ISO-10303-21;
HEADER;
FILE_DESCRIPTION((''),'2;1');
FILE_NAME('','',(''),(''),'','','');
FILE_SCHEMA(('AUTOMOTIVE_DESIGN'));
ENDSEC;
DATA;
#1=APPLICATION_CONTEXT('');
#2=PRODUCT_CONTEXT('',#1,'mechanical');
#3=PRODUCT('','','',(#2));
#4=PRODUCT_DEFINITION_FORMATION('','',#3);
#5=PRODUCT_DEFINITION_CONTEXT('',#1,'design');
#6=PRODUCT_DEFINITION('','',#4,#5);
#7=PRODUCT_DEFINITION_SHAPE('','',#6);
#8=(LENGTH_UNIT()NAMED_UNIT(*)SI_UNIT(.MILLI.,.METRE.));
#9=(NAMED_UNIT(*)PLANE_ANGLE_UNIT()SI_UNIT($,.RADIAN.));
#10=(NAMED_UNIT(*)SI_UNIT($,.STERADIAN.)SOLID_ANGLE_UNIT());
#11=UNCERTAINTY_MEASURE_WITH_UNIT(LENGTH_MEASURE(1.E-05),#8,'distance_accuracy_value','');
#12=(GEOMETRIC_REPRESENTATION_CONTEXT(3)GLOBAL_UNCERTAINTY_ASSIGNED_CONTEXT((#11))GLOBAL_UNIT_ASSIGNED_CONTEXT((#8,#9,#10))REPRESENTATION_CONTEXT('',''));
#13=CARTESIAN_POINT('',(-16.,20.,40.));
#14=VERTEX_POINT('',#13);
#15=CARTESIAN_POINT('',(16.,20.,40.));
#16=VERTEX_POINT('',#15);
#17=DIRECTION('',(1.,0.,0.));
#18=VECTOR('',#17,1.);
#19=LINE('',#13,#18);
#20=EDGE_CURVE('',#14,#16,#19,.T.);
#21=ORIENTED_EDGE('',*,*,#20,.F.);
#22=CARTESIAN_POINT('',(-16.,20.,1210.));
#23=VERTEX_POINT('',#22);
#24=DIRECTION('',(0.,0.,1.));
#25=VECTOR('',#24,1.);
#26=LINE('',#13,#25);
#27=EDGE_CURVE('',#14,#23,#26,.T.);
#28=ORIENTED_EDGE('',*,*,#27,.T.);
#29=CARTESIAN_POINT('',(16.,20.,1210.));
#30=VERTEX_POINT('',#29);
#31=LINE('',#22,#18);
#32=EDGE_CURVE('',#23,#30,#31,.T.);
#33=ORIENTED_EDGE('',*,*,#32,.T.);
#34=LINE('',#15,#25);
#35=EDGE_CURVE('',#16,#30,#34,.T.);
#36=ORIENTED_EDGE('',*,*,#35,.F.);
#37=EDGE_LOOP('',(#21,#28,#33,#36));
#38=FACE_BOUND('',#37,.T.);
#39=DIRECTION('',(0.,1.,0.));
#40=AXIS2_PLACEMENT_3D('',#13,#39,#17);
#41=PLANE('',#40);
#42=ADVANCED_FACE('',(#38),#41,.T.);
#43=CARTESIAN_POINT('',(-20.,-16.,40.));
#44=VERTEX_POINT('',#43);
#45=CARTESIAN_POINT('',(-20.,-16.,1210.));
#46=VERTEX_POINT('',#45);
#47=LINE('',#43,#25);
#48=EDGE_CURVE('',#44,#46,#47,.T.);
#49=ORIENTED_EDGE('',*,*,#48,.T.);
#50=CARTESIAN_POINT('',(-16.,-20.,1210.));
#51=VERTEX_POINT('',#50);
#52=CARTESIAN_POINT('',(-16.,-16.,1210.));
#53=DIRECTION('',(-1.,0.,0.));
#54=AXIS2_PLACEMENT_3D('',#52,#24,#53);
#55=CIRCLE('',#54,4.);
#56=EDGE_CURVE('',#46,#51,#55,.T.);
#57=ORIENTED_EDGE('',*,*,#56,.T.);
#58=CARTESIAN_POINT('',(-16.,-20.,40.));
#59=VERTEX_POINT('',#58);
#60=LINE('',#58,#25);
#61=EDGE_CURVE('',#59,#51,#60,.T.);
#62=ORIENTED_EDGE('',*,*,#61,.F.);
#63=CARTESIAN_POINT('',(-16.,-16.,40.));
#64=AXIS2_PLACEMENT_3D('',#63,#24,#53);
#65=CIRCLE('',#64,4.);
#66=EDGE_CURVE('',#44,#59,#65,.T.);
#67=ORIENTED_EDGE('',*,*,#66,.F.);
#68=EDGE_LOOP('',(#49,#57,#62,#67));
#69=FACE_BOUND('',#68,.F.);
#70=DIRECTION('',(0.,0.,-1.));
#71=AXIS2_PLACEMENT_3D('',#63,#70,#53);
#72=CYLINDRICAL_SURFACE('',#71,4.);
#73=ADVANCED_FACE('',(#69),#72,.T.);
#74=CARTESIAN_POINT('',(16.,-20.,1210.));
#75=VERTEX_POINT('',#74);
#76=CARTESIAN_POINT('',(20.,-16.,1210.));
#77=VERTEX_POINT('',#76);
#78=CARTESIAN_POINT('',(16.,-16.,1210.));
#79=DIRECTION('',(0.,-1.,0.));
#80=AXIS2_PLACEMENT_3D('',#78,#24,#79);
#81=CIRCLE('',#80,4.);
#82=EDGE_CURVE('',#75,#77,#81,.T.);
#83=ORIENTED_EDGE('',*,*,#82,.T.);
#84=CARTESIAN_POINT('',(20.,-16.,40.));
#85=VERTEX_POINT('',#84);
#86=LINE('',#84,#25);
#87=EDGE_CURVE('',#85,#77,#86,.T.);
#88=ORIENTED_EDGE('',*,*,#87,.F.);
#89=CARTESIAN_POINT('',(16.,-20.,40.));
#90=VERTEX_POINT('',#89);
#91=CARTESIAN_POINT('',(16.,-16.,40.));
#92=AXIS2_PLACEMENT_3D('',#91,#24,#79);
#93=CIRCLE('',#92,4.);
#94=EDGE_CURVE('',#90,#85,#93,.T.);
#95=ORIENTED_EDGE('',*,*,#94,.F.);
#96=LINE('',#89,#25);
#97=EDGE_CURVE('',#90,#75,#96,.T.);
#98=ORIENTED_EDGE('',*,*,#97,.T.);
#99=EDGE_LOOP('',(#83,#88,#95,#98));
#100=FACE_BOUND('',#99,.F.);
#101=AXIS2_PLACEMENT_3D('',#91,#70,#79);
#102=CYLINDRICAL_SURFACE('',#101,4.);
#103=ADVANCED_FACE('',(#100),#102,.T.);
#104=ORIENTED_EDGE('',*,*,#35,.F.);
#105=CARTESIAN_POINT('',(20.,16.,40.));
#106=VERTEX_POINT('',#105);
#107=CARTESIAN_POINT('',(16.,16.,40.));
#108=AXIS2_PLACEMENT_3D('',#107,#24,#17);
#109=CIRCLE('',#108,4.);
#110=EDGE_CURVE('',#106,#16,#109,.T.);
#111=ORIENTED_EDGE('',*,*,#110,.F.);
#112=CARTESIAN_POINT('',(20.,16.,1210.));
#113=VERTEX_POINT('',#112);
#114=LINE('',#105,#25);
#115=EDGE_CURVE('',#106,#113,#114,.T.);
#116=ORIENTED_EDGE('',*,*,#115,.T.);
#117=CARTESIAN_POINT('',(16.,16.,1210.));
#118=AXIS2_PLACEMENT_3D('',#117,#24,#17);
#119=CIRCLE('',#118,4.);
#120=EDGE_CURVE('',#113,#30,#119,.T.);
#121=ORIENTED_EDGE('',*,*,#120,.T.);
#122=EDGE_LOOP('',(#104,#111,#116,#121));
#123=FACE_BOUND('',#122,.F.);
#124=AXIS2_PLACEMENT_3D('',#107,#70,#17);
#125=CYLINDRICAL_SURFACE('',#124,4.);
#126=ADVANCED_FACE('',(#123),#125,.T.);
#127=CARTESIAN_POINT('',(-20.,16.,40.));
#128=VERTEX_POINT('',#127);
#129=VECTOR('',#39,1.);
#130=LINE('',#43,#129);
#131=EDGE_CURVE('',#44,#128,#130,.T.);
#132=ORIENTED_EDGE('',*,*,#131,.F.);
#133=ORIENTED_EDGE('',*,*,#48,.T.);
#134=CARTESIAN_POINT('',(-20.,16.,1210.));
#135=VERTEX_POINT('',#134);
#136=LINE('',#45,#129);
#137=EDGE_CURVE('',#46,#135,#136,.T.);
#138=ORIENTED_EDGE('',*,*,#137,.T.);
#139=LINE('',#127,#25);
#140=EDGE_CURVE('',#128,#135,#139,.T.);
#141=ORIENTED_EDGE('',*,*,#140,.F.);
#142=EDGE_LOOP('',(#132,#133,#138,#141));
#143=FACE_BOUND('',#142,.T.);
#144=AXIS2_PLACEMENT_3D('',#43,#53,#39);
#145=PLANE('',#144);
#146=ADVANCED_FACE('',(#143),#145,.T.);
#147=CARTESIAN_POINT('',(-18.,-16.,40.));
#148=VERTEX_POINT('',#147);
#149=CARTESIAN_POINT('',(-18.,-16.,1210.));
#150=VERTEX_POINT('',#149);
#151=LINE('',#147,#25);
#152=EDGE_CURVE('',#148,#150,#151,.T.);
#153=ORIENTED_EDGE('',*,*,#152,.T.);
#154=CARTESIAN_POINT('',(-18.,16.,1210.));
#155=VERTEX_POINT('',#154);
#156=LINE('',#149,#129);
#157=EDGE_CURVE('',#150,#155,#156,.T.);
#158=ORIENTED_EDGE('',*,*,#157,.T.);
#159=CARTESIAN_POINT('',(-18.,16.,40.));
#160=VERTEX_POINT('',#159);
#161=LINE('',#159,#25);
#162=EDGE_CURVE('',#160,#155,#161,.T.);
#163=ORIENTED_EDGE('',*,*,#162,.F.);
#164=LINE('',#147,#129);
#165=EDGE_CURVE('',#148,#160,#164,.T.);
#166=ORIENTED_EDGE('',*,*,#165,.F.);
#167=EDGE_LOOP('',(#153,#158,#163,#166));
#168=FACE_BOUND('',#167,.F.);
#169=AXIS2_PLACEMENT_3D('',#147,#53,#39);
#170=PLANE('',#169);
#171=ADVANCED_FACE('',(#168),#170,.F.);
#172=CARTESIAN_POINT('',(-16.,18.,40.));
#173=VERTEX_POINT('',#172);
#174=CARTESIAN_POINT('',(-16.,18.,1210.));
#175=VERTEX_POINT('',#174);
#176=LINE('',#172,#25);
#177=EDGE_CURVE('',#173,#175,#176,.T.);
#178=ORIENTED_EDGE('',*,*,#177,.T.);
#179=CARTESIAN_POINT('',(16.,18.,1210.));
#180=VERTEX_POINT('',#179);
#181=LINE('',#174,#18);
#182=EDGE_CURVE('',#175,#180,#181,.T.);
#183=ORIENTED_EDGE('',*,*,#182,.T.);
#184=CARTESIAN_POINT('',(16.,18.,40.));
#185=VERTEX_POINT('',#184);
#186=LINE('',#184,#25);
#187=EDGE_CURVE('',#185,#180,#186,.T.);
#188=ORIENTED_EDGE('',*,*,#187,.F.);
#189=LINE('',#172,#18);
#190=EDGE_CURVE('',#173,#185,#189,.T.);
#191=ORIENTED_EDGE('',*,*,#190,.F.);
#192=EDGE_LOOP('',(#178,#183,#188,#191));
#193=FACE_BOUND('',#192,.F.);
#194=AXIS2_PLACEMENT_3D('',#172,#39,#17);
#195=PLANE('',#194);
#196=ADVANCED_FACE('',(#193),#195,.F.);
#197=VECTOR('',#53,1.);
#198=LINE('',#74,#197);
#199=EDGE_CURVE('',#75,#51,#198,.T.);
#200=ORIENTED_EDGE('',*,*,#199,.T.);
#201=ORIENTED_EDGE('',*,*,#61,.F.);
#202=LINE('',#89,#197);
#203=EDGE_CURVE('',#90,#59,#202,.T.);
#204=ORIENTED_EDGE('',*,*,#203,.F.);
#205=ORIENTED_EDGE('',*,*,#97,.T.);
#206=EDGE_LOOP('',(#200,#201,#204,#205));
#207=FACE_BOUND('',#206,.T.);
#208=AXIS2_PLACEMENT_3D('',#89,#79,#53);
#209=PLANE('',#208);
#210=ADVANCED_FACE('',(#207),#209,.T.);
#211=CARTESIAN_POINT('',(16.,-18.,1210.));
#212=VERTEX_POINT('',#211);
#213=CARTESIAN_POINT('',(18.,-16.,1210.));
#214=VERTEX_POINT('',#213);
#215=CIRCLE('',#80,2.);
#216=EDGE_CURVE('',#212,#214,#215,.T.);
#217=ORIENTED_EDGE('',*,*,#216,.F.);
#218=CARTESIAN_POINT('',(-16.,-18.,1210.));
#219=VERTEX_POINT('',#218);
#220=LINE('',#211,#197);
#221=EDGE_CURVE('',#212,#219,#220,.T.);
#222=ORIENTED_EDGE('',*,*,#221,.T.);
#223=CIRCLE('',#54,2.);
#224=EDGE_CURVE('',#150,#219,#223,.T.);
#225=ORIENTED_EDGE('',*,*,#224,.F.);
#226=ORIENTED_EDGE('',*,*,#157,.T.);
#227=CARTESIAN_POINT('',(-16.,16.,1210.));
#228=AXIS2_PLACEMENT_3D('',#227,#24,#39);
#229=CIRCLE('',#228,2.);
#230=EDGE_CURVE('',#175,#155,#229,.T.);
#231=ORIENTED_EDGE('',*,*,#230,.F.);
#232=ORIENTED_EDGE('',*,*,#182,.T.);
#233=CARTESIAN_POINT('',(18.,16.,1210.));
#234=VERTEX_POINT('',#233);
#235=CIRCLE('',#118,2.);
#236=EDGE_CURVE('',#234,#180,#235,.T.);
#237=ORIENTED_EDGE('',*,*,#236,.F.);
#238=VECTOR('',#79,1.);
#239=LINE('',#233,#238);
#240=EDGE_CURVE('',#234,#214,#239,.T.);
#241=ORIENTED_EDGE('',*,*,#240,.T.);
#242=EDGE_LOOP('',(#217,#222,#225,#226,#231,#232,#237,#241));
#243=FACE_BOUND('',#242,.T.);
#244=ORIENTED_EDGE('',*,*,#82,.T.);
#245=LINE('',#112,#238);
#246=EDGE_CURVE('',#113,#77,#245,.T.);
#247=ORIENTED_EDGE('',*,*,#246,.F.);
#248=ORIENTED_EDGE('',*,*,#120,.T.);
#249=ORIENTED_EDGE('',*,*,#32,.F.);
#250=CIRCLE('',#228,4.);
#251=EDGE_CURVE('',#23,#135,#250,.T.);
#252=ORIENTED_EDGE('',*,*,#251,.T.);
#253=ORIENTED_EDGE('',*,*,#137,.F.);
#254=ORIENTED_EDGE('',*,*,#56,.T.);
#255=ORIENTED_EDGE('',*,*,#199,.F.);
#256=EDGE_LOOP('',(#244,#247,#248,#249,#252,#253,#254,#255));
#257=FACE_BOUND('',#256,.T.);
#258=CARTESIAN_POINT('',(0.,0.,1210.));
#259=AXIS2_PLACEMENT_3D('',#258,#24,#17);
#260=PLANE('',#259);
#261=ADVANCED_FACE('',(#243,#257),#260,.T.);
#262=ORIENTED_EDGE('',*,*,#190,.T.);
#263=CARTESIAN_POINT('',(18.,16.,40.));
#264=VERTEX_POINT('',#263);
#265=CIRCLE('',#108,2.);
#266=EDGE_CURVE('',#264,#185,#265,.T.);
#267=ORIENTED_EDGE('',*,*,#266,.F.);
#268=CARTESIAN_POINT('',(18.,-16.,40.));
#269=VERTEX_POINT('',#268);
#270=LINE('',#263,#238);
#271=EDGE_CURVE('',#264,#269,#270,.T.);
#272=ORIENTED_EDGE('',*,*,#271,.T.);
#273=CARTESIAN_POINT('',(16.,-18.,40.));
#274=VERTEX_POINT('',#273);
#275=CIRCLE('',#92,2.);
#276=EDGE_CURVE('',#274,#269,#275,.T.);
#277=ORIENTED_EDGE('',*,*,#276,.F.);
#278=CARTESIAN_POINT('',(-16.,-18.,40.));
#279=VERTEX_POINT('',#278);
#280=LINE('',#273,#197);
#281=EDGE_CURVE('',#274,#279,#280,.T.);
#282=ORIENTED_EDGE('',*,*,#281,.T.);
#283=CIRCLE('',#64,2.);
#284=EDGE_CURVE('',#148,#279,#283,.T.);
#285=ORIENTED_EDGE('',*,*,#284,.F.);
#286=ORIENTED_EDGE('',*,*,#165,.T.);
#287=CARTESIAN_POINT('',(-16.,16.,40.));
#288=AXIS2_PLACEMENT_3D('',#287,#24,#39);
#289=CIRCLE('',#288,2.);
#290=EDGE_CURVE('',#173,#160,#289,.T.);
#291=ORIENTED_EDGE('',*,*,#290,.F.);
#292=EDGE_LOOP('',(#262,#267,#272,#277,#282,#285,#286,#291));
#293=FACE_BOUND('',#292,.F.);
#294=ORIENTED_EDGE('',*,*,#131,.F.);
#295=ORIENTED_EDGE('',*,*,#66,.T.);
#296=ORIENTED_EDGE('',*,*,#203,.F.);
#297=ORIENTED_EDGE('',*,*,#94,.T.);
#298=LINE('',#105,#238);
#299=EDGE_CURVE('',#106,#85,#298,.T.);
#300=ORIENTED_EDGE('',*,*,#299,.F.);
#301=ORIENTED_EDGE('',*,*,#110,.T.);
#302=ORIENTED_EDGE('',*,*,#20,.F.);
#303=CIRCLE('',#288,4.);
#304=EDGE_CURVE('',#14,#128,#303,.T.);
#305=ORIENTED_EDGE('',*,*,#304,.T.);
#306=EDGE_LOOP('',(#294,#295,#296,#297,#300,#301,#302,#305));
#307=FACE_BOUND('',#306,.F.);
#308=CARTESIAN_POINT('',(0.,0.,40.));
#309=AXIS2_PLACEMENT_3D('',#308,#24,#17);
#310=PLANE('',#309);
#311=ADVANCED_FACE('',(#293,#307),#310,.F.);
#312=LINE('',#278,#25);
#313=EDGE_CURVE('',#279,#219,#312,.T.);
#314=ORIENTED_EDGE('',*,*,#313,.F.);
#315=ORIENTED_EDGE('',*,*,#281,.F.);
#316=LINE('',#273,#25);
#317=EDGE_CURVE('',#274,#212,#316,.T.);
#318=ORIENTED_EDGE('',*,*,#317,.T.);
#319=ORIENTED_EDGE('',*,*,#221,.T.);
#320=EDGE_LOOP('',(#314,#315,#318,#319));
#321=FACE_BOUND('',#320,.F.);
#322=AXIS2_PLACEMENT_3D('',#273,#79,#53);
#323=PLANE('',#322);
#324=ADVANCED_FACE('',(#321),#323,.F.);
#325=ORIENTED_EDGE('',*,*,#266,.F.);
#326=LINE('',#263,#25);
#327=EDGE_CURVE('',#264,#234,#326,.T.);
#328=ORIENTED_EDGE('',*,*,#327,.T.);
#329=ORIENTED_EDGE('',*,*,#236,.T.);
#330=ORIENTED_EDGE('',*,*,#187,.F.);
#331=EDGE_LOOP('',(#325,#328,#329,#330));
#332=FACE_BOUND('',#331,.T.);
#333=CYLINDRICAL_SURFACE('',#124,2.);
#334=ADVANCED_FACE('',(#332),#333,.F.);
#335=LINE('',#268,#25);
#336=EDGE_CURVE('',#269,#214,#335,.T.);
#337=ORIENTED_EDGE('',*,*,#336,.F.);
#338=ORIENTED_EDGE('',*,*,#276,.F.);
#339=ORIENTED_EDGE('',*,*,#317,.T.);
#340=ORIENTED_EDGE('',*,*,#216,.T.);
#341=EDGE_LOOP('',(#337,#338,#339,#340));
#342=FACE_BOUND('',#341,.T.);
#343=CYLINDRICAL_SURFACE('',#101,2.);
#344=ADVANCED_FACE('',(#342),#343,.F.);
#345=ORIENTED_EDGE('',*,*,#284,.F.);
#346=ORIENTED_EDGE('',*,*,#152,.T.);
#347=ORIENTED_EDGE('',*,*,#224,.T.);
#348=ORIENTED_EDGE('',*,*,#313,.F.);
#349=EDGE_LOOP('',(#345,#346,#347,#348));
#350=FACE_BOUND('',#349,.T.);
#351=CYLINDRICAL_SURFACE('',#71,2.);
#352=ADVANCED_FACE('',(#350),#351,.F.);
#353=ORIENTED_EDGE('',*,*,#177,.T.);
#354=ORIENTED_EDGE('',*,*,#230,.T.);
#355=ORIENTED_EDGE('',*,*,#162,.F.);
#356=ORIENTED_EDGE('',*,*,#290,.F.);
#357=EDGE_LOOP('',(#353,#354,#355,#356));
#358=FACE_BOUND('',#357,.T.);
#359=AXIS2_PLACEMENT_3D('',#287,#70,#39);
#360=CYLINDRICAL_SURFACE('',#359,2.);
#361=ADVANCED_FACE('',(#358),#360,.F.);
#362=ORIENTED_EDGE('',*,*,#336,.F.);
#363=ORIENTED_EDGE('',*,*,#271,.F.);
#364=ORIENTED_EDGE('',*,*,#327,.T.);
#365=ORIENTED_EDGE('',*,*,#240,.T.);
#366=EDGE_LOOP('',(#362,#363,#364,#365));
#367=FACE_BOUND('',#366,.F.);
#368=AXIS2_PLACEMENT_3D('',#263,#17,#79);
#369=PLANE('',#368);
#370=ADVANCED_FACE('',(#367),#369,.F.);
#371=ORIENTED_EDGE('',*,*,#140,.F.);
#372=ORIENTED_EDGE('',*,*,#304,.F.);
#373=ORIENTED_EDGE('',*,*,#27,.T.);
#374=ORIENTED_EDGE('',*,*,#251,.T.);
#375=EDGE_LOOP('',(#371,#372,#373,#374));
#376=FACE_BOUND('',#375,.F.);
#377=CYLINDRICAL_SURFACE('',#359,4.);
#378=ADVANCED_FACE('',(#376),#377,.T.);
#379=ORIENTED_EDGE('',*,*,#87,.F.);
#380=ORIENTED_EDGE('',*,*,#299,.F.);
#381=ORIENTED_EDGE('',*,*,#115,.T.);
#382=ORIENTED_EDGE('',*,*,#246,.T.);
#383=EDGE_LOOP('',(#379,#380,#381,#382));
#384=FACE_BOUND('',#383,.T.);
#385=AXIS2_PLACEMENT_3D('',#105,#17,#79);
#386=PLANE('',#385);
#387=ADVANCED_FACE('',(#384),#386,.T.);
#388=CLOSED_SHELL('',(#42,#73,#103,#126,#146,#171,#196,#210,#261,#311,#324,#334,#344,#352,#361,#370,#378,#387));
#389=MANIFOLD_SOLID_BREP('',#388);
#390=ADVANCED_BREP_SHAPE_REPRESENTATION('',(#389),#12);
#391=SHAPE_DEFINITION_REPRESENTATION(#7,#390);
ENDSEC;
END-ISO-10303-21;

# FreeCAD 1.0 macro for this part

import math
import FreeCAD as App
import Part
import Sketcher
from FreeCAD import Vector
Q = App.Units.Quantity

doc = App.newDocument("Part")
params = doc.addObject("Spreadsheet::Sheet", "Params")
for row, (alias, value) in enumerate([
    ("sketch1_radius", "4 mm"),
    ("sketch1_radius2", "2 mm"),
    ("pad1_length", "1170 mm"),
], start=1):
    params.set(f"A{row}", alias)
    params.set(f"B{row}", "=" + value)
    params.setAlias(f"B{row}", alias)

body = doc.addObject("PartDesign::Body", "Body")

sketch1 = doc.addObject("Sketcher::SketchObject", "Sketch")
body.addObject(sketch1)
sketch1.AttachmentSupport = (doc.XY_Plane, [""])
sketch1.MapMode = "FlatFace"
sketch1.AttachmentOffset = App.Placement(Vector(0, 0, 40), App.Rotation())
sketch1.addGeometry(Part.LineSegment(Vector(-20, 16, 0), Vector(-20, -16, 0)), False)
sketch1.addGeometry(Part.ArcOfCircle(Part.Circle(Vector(-16, -16, 0), Vector(0, 0, 1), 4), math.radians(180), math.radians(270)), False)
sketch1.addGeometry(Part.LineSegment(Vector(-16, -20, 0), Vector(16, -20, 0)), False)
sketch1.addGeometry(Part.ArcOfCircle(Part.Circle(Vector(16, -16, 0), Vector(0, 0, 1), 4), math.radians(-90), math.radians(0)), False)
sketch1.addGeometry(Part.LineSegment(Vector(20, -16, 0), Vector(20, 16, 0)), False)
sketch1.addGeometry(Part.ArcOfCircle(Part.Circle(Vector(16, 16, 0), Vector(0, 0, 1), 4), math.radians(0), math.radians(90)), False)
sketch1.addGeometry(Part.LineSegment(Vector(16, 20, 0), Vector(-16, 20, 0)), False)
sketch1.addGeometry(Part.ArcOfCircle(Part.Circle(Vector(-16, 16, 0), Vector(0, 0, 1), 4), math.radians(90), math.radians(180)), False)
sketch1.addGeometry(Part.ArcOfCircle(Part.Circle(Vector(-16, 16, 0), Vector(0, 0, 1), 2), math.radians(90), math.radians(180)), False)
sketch1.addGeometry(Part.LineSegment(Vector(-16, 18, 0), Vector(16, 18, 0)), False)
sketch1.addGeometry(Part.ArcOfCircle(Part.Circle(Vector(16, 16, 0), Vector(0, 0, 1), 2), math.radians(0), math.radians(90)), False)
sketch1.addGeometry(Part.LineSegment(Vector(18, 16, 0), Vector(18, -16, 0)), False)
sketch1.addGeometry(Part.ArcOfCircle(Part.Circle(Vector(16, -16, 0), Vector(0, 0, 1), 2), math.radians(-90), math.radians(0)), False)
sketch1.addGeometry(Part.LineSegment(Vector(16, -18, 0), Vector(-16, -18, 0)), False)
sketch1.addGeometry(Part.ArcOfCircle(Part.Circle(Vector(-16, -16, 0), Vector(0, 0, 1), 2), math.radians(180), math.radians(270)), False)
sketch1.addGeometry(Part.LineSegment(Vector(-18, -16, 0), Vector(-18, 16, 0)), False)
sketch1.addConstraint(Sketcher.Constraint("Tangent", 0, 2, 1, 1))
sketch1.addConstraint(Sketcher.Constraint("Tangent", 1, 2, 2, 1))
sketch1.addConstraint(Sketcher.Constraint("Tangent", 2, 2, 3, 1))
sketch1.addConstraint(Sketcher.Constraint("Tangent", 3, 2, 4, 1))
sketch1.addConstraint(Sketcher.Constraint("Tangent", 4, 2, 5, 1))
sketch1.addConstraint(Sketcher.Constraint("Tangent", 5, 2, 6, 1))
sketch1.addConstraint(Sketcher.Constraint("Tangent", 6, 2, 7, 1))
sketch1.addConstraint(Sketcher.Constraint("Tangent", 7, 2, 0, 1))
sketch1.addConstraint(Sketcher.Constraint("Tangent", 8, 1, 9, 1))
sketch1.addConstraint(Sketcher.Constraint("Tangent", 9, 2, 10, 2))
sketch1.addConstraint(Sketcher.Constraint("Tangent", 10, 1, 11, 1))
sketch1.addConstraint(Sketcher.Constraint("Tangent", 11, 2, 12, 2))
sketch1.addConstraint(Sketcher.Constraint("Tangent", 12, 1, 13, 1))
sketch1.addConstraint(Sketcher.Constraint("Tangent", 13, 2, 14, 2))
sketch1.addConstraint(Sketcher.Constraint("Tangent", 14, 1, 15, 1))
sketch1.addConstraint(Sketcher.Constraint("Tangent", 15, 2, 8, 2))
sketch1.addConstraint(Sketcher.Constraint("Vertical", 0))
sketch1.addConstraint(Sketcher.Constraint("Horizontal", 2))
sketch1.addConstraint(Sketcher.Constraint("Vertical", 4))
sketch1.addConstraint(Sketcher.Constraint("Horizontal", 6))
sketch1.addConstraint(Sketcher.Constraint("Horizontal", 9))
sketch1.addConstraint(Sketcher.Constraint("Vertical", 11))
sketch1.addConstraint(Sketcher.Constraint("Horizontal", 13))
sketch1.addConstraint(Sketcher.Constraint("Vertical", 15))
sketch1.addConstraint(Sketcher.Constraint("Coincident", 8, 3, 7, 3))
sketch1.addConstraint(Sketcher.Constraint("Coincident", 10, 3, 5, 3))
sketch1.addConstraint(Sketcher.Constraint("Coincident", 12, 3, 3, 3))
sketch1.addConstraint(Sketcher.Constraint("Equal", 1, 3))
sketch1.addConstraint(Sketcher.Constraint("Equal", 3, 5))
sketch1.addConstraint(Sketcher.Constraint("Equal", 5, 7))
sketch1.addConstraint(Sketcher.Constraint("Equal", 12, 14))
sketch1.addConstraint(Sketcher.Constraint("Symmetric", 1, 3, 5, 3, -1, 1))
sketch1.addConstraint(Sketcher.Constraint("Equal", 13, 0))
sketch1.addConstraint(Sketcher.Constraint("Radius", 1, Q("4 mm")))
sketch1.addConstraint(Sketcher.Constraint("Radius", 8, Q("2 mm")))
sketch1.addConstraint(Sketcher.Constraint("DistanceX", 0, 2, -1, 1, Q("20 mm")))
sketch1.setExpression("Constraints[33]", "Params.sketch1_radius")
sketch1.setExpression("Constraints[34]", "Params.sketch1_radius2")
pad1 = doc.addObject("PartDesign::Pad", "Pad")
body.addObject(pad1)
pad1.Profile = sketch1
pad1.setExpression("Length", "Params.pad1_length")

doc.recompute()
